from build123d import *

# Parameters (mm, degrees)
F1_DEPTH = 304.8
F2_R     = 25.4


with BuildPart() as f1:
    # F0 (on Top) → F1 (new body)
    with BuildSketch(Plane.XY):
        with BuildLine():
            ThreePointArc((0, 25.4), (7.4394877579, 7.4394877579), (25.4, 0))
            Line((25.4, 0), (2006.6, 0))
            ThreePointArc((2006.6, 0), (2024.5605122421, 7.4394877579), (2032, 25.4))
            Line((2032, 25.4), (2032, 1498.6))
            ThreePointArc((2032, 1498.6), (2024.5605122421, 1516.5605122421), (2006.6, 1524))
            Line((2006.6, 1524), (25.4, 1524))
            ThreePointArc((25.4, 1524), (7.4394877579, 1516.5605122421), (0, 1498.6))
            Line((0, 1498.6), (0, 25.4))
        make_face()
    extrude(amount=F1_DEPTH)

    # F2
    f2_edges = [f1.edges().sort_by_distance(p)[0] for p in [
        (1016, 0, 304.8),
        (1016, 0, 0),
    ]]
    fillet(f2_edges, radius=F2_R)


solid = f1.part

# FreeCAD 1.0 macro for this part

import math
import FreeCAD as App
import Part
import Sketcher

V = App.Vector
Q = App.Units.Quantity


def edges_at(feature, points):
    """Names of the edges that pass closest to the given points."""
    edges = feature.Shape.Edges
    near = lambda p: min(range(len(edges)), key=lambda i: edges[i].distToShape(Part.Vertex(*p))[0])
    return sorted({f"Edge{near(p) + 1}" for p in points})

doc = App.newDocument("Part")
body = doc.addObject("PartDesign::Body", "Body")

sketch1 = body.newObject("Sketcher::SketchObject", "Sketch")
sketch1.AttachmentSupport = (doc.getObject("XY_Plane"), [""])
sketch1.MapMode = "FlatFace"
sketch1.addGeometry([
    Part.ArcOfCircle(Part.Circle(V(25, 25, 0), V(0, 0, 1), 25), math.radians(180), math.radians(270)),
    Part.LineSegment(V(25, 0, 0), V(2007, 0, 0)),
    Part.ArcOfCircle(Part.Circle(V(2007, 25, 0), V(0, 0, 1), 25), math.radians(-90), math.radians(0)),
    Part.LineSegment(V(2032, 25, 0), V(2032, 1499, 0)),
    Part.ArcOfCircle(Part.Circle(V(2007, 1499, 0), V(0, 0, 1), 25), math.radians(0), math.radians(90)),
    Part.LineSegment(V(2007, 1524, 0), V(25, 1524, 0)),
    Part.ArcOfCircle(Part.Circle(V(25, 1499, 0), V(0, 0, 1), 25), math.radians(90), math.radians(180)),
    Part.LineSegment(V(0, 1499, 0), V(0, 25, 0)),
], False)
sketch1.addConstraint([
    Sketcher.Constraint("Tangent", 0, 2, 1, 1),
    Sketcher.Constraint("Tangent", 1, 2, 2, 1),
    Sketcher.Constraint("Tangent", 2, 2, 3, 1),
    Sketcher.Constraint("Tangent", 3, 2, 4, 1),
    Sketcher.Constraint("Tangent", 4, 2, 5, 1),
    Sketcher.Constraint("Tangent", 5, 2, 6, 1),
    Sketcher.Constraint("Tangent", 6, 2, 7, 1),
    Sketcher.Constraint("Tangent", 7, 2, 0, 1),
    Sketcher.Constraint("Horizontal", 1),
    Sketcher.Constraint("Vertical", 3),
    Sketcher.Constraint("Horizontal", 5),
    Sketcher.Constraint("Vertical", 7),
    Sketcher.Constraint("Equal", 0, 2),
    Sketcher.Constraint("Equal", 2, 4),
    Sketcher.Constraint("Equal", 4, 6),
    Sketcher.Constraint("PointOnObject", 0, 2, -1),
    Sketcher.Constraint("PointOnObject", 6, 2, -2),
    Sketcher.Constraint("Radius", 0, Q("1 in")),
    Sketcher.Constraint("DistanceX", 1, 1, 1, 2, Q("78 in")),
    Sketcher.Constraint("DistanceY", 3, 1, 3, 2, Q("58 in")),
])
pad1 = body.newObject("PartDesign::Pad", "Pad")
pad1.Profile = sketch1
pad1.Length = Q("12 in")
doc.recompute()

fillet = body.newObject("PartDesign::Fillet", "Fillet")
fillet.Base = (pad1, edges_at(pad1, [(1016, 0, 304.8), (1016, 0, 0)]))
fillet.Radius = Q("1 in")

doc.recompute()
